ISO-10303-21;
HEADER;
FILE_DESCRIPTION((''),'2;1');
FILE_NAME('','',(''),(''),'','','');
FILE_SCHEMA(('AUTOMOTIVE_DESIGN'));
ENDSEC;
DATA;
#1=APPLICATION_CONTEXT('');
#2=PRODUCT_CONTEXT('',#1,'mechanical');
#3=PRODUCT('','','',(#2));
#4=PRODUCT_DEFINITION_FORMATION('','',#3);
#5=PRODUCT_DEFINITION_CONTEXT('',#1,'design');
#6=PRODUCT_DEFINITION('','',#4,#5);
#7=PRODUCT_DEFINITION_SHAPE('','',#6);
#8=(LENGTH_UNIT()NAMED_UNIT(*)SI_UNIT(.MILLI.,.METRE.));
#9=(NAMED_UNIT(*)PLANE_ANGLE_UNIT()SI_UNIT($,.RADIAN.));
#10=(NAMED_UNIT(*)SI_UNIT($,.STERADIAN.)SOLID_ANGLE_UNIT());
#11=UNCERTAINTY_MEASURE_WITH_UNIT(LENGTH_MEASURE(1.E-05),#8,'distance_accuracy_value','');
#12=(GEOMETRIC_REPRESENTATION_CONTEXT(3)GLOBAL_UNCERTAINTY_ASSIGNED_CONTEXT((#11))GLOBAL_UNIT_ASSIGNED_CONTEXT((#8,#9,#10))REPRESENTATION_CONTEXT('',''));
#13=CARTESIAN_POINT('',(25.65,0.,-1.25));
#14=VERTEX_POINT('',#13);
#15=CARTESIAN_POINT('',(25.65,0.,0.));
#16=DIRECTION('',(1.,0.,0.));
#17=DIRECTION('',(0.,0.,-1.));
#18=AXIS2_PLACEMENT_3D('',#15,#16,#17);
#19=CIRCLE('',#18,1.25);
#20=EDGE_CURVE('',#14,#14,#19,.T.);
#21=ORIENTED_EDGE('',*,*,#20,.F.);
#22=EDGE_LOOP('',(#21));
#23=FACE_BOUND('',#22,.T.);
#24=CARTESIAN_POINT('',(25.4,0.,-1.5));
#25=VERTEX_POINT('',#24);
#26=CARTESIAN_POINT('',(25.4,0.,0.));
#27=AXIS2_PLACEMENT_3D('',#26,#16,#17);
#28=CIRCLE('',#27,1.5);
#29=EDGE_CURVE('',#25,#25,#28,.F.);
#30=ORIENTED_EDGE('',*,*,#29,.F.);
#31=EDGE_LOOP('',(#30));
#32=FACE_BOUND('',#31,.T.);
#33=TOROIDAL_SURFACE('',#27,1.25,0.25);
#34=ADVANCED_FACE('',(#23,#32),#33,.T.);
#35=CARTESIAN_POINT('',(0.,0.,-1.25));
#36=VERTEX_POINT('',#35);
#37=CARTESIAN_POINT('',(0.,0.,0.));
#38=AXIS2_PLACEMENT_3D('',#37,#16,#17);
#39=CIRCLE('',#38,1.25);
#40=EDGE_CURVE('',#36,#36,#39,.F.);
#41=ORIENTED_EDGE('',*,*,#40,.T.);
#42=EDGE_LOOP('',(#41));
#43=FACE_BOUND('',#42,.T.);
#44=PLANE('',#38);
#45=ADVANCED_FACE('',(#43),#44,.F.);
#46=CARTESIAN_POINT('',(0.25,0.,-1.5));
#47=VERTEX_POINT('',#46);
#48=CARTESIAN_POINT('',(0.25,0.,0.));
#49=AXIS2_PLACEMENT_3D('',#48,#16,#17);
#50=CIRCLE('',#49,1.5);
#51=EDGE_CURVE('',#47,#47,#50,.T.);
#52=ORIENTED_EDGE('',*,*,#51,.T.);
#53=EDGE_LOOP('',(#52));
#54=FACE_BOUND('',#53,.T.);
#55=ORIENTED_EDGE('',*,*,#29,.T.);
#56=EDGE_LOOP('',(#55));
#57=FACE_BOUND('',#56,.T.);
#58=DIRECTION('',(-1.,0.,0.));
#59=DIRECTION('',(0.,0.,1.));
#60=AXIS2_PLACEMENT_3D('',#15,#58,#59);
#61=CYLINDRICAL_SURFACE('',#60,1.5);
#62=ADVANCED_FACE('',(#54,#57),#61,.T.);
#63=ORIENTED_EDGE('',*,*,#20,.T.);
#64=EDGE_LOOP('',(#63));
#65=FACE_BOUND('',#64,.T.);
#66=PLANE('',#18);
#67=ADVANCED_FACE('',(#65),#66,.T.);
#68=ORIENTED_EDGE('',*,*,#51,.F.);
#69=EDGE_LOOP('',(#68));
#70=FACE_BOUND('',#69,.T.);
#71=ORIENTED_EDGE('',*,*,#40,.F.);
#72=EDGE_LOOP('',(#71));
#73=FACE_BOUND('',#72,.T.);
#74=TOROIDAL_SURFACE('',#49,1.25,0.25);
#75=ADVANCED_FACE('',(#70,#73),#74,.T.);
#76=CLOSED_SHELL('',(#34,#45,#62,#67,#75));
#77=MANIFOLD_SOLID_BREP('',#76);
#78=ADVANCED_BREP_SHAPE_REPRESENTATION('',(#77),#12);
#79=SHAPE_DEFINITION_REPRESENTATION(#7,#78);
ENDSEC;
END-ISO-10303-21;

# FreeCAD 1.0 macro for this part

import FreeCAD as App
import Part
import Sketcher

V = App.Vector
Q = App.Units.Quantity


def edges_at(feature, points):
    """Names of the edges that pass closest to the given points."""
    edges = feature.Shape.Edges
    near = lambda p: min(range(len(edges)), key=lambda i: edges[i].distToShape(Part.Vertex(*p))[0])
    return sorted({f"Edge{near(p) + 1}" for p in points})

doc = App.newDocument("Part")
body = doc.addObject("PartDesign::Body", "Body")

# Sketch on YZ plane
sketch1 = body.newObject("Sketcher::SketchObject", "Sketch")
sketch1.AttachmentSupport = (doc.getObject("YZ_Plane"), [""])
sketch1.MapMode = "FlatFace"
sketch1.addGeometry(Part.Circle(V(0, 0, 0), V(0, 0, 1), 1.5), False)
sketch1.addConstraint(Sketcher.Constraint("Coincident", 0, 3, -1, 1))
sketch1.addConstraint(Sketcher.Constraint("Diameter", 0, Q("3 mm")))
pad1 = body.newObject("PartDesign::Pad", "Pad")
pad1.Profile = sketch1
pad1.Length = 25.65
doc.recompute()

fillet = body.newObject("PartDesign::Fillet", "Fillet")
fillet.Base = (pad1, edges_at(pad1, [(0, 0, 1.5), (25.65, 0, 1.5)]))
fillet.Radius = 0.25

doc.recompute()
